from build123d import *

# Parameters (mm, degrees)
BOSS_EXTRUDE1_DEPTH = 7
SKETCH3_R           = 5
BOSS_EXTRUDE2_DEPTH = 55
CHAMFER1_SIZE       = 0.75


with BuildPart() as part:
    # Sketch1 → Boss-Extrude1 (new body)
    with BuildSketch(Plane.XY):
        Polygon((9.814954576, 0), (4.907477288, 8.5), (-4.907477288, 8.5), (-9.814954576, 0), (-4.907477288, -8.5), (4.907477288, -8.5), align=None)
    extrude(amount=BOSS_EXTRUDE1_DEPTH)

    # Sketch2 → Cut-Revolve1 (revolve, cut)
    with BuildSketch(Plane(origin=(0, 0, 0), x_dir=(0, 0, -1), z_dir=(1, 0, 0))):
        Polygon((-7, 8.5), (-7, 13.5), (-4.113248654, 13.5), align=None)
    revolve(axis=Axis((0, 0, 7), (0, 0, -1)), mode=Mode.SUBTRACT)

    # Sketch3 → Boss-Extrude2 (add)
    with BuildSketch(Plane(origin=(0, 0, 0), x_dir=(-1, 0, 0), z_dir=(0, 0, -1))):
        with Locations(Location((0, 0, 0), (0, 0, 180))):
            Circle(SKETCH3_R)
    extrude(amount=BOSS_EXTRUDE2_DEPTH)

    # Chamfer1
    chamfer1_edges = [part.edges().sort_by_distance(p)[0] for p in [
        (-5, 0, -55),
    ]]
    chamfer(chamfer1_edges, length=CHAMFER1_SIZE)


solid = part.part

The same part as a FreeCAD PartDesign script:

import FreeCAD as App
import Part
import Sketcher

V = App.Vector
Q = App.Units.Quantity


def edges_at(feature, points):
    """Names of the edges that pass closest to the given points."""
    edges = feature.Shape.Edges
    near = lambda p: min(range(len(edges)), key=lambda i: edges[i].distToShape(Part.Vertex(*p))[0])
    return sorted({f"Edge{near(p) + 1}" for p in points})


def add_polygon(sketch, points):
    """Adds a closed chain of lines whose ends are joined by coincident constraints."""
    first, n = sketch.GeometryCount, len(points)
    for a, b in zip(points, points[1:] + points[:1]):
        sketch.addGeometry(Part.LineSegment(App.Vector(*a, 0), App.Vector(*b, 0)), False)
    for i in range(n):
        sketch.addConstraint(Sketcher.Constraint("Coincident", first + i, 2, first + (i + 1) % n, 1))

doc = App.newDocument("Part")
body = doc.addObject("PartDesign::Body", "Body")

sketch1 = body.newObject("Sketcher::SketchObject", "Sketch")
sketch1.AttachmentSupport = (doc.getObject("XY_Plane"), [""])
sketch1.MapMode = "FlatFace"
add_polygon(sketch1, [(9.814955, 0), (4.907477, 8.5), (-4.907477, 8.5), (-9.814955, 0), (-4.907477, -8.5), (4.907477, -8.5)])
sketch1.addConstraint([
    Sketcher.Constraint("Horizontal", 1),
    Sketcher.Constraint("Horizontal", 4),
    Sketcher.Constraint("Symmetric", 0, 2, 3, 2, -1, 1),
    Sketcher.Constraint("Symmetric", 2, 2, 5, 2, -1, 1),
    Sketcher.Constraint("PointOnObject", 2, 2, -1),
    Sketcher.Constraint("Parallel", 2, 5),
    Sketcher.Constraint("Vertical", 1, 2, 3, 2),
    Sketcher.Constraint("Angle", 0, Q("120 deg")),
    Sketcher.Constraint("DistanceY", 3, 2, 1, 2, Q("17 mm")),
    Sketcher.Constraint("DistanceX", 1, 2, 1, 1, Q("9.814955 mm")),
])
pad1 = body.newObject("PartDesign::Pad", "Pad")
pad1.Profile = sketch1
pad1.Length = 7

sketch2 = body.newObject("Sketcher::SketchObject", "Sketch001")
sketch2.AttachmentSupport = (doc.getObject("YZ_Plane"), [""])
sketch2.MapMode = "FlatFace"
add_polygon(sketch2, [(13.5, 7), (8.5, 7), (13.5, 4.113249)])
sketch2.addConstraint([
    Sketcher.Constraint("Horizontal", 0),
    Sketcher.Constraint("Vertical", 2),
    Sketcher.Constraint("DistanceX", 0, 2, 0, 1, Q("5 mm")),
    Sketcher.Constraint("Angle", 1, Q("-30 deg")),
    Sketcher.Constraint("DistanceY", -1, 1, 0, 2, Q("7 mm")),
    Sketcher.Constraint("DistanceX", -1, 1, 0, 2, Q("8.5 mm")),
])
groove = body.newObject("PartDesign::Groove", "Groove")
groove.Profile = sketch2
groove.ReferenceAxis = (sketch2, ["V_Axis"])
groove.Angle = 360

sketch3 = body.newObject("Sketcher::SketchObject", "Sketch002")
sketch3.AttachmentSupport = (doc.getObject("XY_Plane"), [""])
sketch3.MapMode = "FlatFace"
sketch3.addGeometry(Part.Circle(V(0, 0, 0), V(0, 0, 1), 5), False)
sketch3.addConstraint([
    Sketcher.Constraint("Coincident", 0, 3, -1, 1),
    Sketcher.Constraint("Diameter", 0, Q("10 mm")),
])
pad2 = body.newObject("PartDesign::Pad", "Pad001")
pad2.Profile = sketch3
pad2.Length = 55
pad2.Reversed = True
doc.recompute()

chamfer = body.newObject("PartDesign::Chamfer", "Chamfer")
chamfer.Base = (pad2, edges_at(pad2, [(-5, 0, -55)]))
chamfer.Size = 0.75

doc.recompute()
